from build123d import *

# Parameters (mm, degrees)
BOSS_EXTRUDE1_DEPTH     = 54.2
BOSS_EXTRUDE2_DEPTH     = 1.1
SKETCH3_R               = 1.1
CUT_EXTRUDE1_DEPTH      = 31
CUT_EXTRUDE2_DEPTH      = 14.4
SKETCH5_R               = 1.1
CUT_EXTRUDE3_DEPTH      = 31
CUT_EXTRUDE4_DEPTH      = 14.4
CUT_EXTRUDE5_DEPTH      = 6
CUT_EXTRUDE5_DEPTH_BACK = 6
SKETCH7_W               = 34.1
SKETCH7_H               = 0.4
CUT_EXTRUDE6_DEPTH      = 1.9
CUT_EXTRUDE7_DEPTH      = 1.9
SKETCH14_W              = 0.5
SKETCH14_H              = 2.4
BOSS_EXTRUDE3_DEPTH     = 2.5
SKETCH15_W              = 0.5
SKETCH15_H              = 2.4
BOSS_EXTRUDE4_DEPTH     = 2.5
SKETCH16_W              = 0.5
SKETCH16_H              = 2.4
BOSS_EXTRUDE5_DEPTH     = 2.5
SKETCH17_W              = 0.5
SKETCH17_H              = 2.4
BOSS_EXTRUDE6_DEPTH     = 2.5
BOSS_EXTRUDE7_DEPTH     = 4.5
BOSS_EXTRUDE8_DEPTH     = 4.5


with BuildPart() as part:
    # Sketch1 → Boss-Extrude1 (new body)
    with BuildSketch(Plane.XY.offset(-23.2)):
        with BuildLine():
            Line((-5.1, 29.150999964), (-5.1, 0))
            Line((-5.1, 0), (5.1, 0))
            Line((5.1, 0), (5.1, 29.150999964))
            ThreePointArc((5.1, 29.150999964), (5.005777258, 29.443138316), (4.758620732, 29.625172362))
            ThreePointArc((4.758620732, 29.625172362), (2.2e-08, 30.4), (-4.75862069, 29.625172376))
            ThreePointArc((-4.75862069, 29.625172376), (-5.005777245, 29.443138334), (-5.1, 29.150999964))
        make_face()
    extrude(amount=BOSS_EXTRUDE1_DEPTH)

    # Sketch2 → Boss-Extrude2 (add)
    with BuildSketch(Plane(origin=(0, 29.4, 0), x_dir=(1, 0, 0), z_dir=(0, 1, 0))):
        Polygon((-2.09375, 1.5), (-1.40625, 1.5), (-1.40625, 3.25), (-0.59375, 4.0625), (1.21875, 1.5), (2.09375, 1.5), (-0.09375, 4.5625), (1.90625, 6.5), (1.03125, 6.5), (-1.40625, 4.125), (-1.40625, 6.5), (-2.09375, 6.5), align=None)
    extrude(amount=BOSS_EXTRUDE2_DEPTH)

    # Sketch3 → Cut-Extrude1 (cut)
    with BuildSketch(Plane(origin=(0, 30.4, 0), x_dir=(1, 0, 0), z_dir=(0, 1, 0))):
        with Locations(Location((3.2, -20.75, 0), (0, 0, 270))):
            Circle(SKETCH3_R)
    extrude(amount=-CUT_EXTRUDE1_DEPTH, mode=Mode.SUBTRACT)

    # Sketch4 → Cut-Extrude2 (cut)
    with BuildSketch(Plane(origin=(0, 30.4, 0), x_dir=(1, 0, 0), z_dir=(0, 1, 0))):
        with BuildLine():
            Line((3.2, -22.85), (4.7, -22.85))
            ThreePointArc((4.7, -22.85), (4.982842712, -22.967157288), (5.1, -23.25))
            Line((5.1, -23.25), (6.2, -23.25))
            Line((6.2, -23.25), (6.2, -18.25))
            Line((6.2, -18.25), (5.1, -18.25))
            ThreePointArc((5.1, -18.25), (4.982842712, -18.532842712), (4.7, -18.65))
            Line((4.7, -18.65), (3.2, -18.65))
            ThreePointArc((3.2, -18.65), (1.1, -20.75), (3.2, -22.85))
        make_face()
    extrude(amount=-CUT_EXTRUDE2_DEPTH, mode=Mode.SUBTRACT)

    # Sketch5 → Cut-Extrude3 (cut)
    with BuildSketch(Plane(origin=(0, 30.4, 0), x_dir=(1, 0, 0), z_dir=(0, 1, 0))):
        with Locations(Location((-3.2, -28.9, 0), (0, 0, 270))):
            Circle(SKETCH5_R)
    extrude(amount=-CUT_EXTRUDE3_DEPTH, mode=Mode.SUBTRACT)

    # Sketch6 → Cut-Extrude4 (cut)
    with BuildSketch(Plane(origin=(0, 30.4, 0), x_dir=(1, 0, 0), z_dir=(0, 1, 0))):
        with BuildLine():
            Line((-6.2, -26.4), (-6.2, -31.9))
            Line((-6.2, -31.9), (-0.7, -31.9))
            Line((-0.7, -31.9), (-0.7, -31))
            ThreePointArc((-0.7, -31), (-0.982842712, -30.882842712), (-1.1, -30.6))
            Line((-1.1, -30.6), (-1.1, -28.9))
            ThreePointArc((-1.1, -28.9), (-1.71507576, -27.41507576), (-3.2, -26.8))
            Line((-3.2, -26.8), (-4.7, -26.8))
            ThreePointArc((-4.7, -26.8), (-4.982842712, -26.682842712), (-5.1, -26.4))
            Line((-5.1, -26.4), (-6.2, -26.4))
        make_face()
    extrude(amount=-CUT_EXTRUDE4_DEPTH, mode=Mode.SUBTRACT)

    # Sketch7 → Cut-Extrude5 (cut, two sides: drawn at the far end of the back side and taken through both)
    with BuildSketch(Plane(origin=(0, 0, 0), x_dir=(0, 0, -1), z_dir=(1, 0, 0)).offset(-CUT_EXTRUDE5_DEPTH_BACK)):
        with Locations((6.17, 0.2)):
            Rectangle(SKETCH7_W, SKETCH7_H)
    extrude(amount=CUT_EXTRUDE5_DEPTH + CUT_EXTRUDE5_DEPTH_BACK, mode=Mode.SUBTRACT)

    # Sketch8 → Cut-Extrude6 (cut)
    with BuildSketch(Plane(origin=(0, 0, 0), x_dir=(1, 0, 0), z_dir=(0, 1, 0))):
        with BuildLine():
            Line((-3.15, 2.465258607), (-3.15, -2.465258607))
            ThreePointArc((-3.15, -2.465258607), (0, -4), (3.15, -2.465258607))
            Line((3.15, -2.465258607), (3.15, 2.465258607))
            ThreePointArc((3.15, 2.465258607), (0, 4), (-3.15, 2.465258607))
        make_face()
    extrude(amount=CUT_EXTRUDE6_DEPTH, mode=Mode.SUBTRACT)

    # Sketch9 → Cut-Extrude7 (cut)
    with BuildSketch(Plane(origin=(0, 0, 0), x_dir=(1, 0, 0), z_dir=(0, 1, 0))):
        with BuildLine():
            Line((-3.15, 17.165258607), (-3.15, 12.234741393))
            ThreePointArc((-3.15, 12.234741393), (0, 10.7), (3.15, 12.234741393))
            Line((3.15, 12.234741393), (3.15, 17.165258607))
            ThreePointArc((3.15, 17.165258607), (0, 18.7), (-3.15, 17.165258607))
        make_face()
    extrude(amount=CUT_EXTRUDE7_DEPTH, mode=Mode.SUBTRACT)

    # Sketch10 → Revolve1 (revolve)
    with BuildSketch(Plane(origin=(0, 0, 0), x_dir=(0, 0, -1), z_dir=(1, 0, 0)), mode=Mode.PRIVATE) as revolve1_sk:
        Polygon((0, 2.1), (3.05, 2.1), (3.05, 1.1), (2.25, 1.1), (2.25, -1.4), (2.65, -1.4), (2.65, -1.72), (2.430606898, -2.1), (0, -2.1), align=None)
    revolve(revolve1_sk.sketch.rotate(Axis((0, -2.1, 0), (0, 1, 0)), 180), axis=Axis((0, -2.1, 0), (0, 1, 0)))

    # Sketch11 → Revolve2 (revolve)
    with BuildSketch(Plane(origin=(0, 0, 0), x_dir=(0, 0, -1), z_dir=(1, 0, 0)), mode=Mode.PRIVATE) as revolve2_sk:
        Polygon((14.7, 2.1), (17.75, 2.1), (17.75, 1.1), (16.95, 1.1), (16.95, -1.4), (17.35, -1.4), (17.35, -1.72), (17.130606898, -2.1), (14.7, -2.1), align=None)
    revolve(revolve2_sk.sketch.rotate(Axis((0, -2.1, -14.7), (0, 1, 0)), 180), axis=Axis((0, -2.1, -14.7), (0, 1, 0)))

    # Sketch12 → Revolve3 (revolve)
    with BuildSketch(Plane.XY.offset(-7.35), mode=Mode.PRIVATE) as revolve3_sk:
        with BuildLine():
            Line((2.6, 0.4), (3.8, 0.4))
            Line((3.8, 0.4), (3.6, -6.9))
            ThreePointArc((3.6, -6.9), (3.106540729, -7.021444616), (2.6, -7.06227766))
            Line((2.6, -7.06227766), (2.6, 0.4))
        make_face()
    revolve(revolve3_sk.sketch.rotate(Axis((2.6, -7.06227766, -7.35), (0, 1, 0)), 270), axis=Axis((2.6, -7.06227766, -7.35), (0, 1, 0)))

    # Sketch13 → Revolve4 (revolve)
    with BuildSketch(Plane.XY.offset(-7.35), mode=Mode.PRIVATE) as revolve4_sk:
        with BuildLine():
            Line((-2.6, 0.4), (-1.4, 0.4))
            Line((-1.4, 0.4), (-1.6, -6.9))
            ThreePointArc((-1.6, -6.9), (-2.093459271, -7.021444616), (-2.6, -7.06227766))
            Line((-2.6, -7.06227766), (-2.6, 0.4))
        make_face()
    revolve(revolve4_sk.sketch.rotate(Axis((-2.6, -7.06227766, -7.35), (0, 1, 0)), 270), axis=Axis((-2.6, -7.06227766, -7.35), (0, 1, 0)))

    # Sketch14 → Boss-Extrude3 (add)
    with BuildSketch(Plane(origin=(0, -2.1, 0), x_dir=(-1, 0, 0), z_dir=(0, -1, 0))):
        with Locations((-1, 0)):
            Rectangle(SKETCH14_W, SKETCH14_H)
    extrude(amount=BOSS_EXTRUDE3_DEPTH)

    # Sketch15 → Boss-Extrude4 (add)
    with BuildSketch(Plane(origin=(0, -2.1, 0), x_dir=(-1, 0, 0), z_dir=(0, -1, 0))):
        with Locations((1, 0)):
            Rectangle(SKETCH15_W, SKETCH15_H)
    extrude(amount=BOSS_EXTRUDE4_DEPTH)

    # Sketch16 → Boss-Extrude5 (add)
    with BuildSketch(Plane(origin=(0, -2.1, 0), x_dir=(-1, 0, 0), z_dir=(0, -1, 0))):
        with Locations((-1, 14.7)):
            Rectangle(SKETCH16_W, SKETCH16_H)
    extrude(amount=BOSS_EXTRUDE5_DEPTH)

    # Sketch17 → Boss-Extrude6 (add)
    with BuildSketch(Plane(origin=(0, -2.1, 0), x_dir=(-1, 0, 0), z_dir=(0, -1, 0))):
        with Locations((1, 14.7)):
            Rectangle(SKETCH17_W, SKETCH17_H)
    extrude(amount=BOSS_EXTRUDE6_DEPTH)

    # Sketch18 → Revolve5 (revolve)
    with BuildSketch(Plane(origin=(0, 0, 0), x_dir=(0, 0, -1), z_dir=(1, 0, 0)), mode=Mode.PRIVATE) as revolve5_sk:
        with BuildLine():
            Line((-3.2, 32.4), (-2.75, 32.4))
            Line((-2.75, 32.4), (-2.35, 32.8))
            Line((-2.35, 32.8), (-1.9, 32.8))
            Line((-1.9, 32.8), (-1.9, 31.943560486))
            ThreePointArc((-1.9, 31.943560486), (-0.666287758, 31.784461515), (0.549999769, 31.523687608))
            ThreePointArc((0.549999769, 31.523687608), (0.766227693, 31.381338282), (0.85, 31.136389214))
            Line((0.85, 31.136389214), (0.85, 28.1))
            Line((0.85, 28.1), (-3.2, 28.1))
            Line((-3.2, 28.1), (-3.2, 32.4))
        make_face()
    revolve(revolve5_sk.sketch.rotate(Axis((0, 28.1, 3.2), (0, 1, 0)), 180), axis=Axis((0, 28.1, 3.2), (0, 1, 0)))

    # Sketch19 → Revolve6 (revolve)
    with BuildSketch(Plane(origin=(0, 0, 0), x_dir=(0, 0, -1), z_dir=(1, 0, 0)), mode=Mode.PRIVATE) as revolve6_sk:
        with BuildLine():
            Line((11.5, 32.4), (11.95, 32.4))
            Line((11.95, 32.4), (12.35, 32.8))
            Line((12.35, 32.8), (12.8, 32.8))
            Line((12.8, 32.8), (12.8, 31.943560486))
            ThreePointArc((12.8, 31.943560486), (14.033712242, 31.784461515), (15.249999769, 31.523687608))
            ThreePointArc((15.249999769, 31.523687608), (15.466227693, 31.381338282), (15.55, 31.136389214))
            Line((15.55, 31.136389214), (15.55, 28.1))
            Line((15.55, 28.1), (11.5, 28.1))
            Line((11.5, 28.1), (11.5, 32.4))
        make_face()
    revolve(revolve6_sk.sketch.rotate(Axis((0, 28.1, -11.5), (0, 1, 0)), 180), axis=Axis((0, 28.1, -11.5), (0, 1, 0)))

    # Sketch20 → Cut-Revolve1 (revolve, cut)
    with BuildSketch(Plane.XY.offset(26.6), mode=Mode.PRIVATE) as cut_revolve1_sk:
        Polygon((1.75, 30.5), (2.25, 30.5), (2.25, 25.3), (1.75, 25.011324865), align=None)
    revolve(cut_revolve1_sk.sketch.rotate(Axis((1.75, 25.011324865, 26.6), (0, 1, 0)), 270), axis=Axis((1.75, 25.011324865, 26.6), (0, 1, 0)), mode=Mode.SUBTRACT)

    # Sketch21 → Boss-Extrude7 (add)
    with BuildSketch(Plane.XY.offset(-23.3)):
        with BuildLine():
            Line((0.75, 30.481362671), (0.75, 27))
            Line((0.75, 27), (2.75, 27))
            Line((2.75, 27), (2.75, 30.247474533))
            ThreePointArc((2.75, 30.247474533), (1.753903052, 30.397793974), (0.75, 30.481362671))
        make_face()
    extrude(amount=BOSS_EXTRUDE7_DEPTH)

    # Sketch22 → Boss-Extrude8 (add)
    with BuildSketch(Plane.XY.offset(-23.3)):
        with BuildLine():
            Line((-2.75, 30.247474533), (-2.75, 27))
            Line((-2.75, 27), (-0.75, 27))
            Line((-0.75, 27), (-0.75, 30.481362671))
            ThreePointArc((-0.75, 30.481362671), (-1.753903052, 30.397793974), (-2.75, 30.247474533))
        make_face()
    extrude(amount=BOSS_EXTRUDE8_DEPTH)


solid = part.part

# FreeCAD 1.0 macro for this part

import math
import FreeCAD as App
import Part
import Sketcher
from FreeCAD import Vector
Q = App.Units.Quantity


def add_polygon(sketch, points):
    """Adds a closed chain of lines whose ends are joined by coincident constraints."""
    first, n = sketch.GeometryCount, len(points)
    for a, b in zip(points, points[1:] + points[:1]):
        sketch.addGeometry(Part.LineSegment(App.Vector(*a, 0), App.Vector(*b, 0)), False)
    for i in range(n):
        sketch.addConstraint(Sketcher.Constraint("Coincident", first + i, 2, first + (i + 1) % n, 1))

doc = App.newDocument("Part")
body = doc.addObject("PartDesign::Body", "Body")

# Sketch on XY plane
sketch1 = doc.addObject("Sketcher::SketchObject", "Sketch")
body.addObject(sketch1)
sketch1.AttachmentSupport = (doc.XY_Plane, [""])
sketch1.MapMode = "FlatFace"
sketch1.AttachmentOffset = App.Placement(Vector(0, 0, -23.2), App.Rotation())
sketch1.addGeometry([
    Part.LineSegment(Vector(-5.1, 29.2, 0), Vector(-5.1, 0, 0)),  # 0
    Part.LineSegment(Vector(-5.1, 0, 0), Vector(5.1, 0, 0)),  # 1
    Part.LineSegment(Vector(5.1, 0, 0), Vector(5.1, 29.2, 0)),  # 2
    Part.ArcOfCircle(Part.Circle(Vector(4.6, 29.2, 0), Vector(0, 0, 1), 0.5), math.radians(0), math.radians(72)),  # 3
    Part.ArcOfCircle(Part.Circle(Vector(0, 15.4, 0), Vector(0, 0, 1), 15), math.radians(72), math.radians(108)),  # 4
    Part.ArcOfCircle(Part.Circle(Vector(-4.6, 29.2, 0), Vector(0, 0, 1), 0.5), math.radians(108), math.radians(180)),  # 5
], False)
sketch1.addConstraint([
    Sketcher.Constraint("Coincident", 0, 2, 1, 1),
    Sketcher.Constraint("Coincident", 1, 2, 2, 1),
    Sketcher.Constraint("Tangent", 2, 2, 3, 1),
    Sketcher.Constraint("Tangent", 3, 2, 4, 1),
    Sketcher.Constraint("Tangent", 4, 2, 5, 1),
    Sketcher.Constraint("Tangent", 5, 2, 0, 1),
    Sketcher.Constraint("Vertical", 0),
    Sketcher.Constraint("Horizontal", 1),
    Sketcher.Constraint("Vertical", 2),
    Sketcher.Constraint("Equal", 3, 5),
    Sketcher.Constraint("Symmetric", 0, 2, 1, 2, -1, 1),
    Sketcher.Constraint("PointOnObject", 4, 3, -2),
    Sketcher.Constraint("Radius", 4, Q("15 mm")),
    Sketcher.Constraint("Radius", 3, Q("0.5 mm")),
    Sketcher.Constraint("DistanceX", 1, 1, 1, 2, Q("10.2 mm")),
    Sketcher.Constraint("DistanceY", -1, 1, 4, 3, Q("15.4 mm")),
])
pad1 = doc.addObject("PartDesign::Pad", "Pad")
body.addObject(pad1)
pad1.Profile = sketch1
pad1.Length = 54.2

# Sketch on XZ plane
sketch2 = doc.addObject("Sketcher::SketchObject", "Sketch001")
body.addObject(sketch2)
sketch2.AttachmentSupport = (doc.XZ_Plane, [""])
sketch2.MapMode = "FlatFace"
sketch2.AttachmentOffset = App.Placement(Vector(0, 0, -29.4), App.Rotation())
add_polygon(sketch2, [(-2.1, -1.5), (-1.4, -1.5), (-1.4, -3.2), (-0.6, -4.1), (1.2, -1.5), (2.1, -1.5), (-0.1, -4.6), (1.9, -6.5), (1, -6.5), (-1.4, -4.1), (-1.4, -6.5), (-2.1, -6.5)])  # lines 0-11
sketch2.addConstraint([
    Sketcher.Constraint("Horizontal", 0),
    Sketcher.Constraint("Vertical", 1),
    Sketcher.Constraint("Horizontal", 4),
    Sketcher.Constraint("Horizontal", 7),
    Sketcher.Constraint("Vertical", 9),
    Sketcher.Constraint("Horizontal", 10),
    Sketcher.Constraint("Vertical", 11),
    Sketcher.Constraint("Symmetric", 4, 2, 11, 2, -2),
    Sketcher.Constraint("Horizontal", 7, 2, 9, 2),
    Sketcher.Constraint("Vertical", 1, 2, 8, 2),
    Sketcher.Constraint("Equal", 4, 7),
    Sketcher.Constraint("DistanceY", 11, 1, 11, 2, Q("5 mm")),
    Sketcher.Constraint("Angle", 2, Q("-45 deg")),
    Sketcher.Constraint("DistanceX", 5, 2, 6, 2, Q("2 mm")),
    Sketcher.Constraint("DistanceX", 10, 2, 5, 2, Q("2 mm")),
    Sketcher.Constraint("DistanceY", 1, 2, 1, 1, Q("1.75 mm")),
    Sketcher.Constraint("DistanceY", 0, 2, -1, 1, Q("1.5 mm")),
    Sketcher.Constraint("DistanceX", 0, 2, 4, 2, Q("3.5 mm")),
    Sketcher.Constraint("DistanceX", 2, 2, 5, 2, Q("0.5 mm")),
    Sketcher.Constraint("DistanceY", 5, 2, 2, 2, Q("0.5 mm")),
    Sketcher.Constraint("DistanceX", 4, 1, 4, 2, Q("0.875 mm")),
    Sketcher.Constraint("DistanceY", 9, 2, 9, 1, Q("2.375 mm")),
    Sketcher.Constraint("DistanceX", 0, 1, 0, 2, Q("0.6875 mm")),
])
pad2 = doc.addObject("PartDesign::Pad", "Pad001")
body.addObject(pad2)
pad2.Profile = sketch2
pad2.Length = 1.1
pad2.Reversed = True

# Sketch on XZ plane
sketch3 = doc.addObject("Sketcher::SketchObject", "Sketch002")
body.addObject(sketch3)
sketch3.AttachmentSupport = (doc.XZ_Plane, [""])
sketch3.MapMode = "FlatFace"
sketch3.AttachmentOffset = App.Placement(Vector(0, 0, -30.4), App.Rotation())
sketch3.addGeometry(Part.Circle(Vector(3.2, 20.8, 0), Vector(0, 0, 1), 1.1), False)
sketch3.addConstraint([
    Sketcher.Constraint("Diameter", 0, Q("2.2 mm")),
    Sketcher.Constraint("DistanceX", -1, 1, 0, 3, Q("3.2 mm")),
    Sketcher.Constraint("DistanceY", -1, 1, 0, 3, Q("20.75 mm")),
])
pocket1 = doc.addObject("PartDesign::Pocket", "Pocket")
body.addObject(pocket1)
pocket1.Profile = sketch3
pocket1.Length = 31
pocket1.Reversed = True

# Sketch on XZ plane
sketch4 = doc.addObject("Sketcher::SketchObject", "Sketch003")
body.addObject(sketch4)
sketch4.AttachmentSupport = (doc.XZ_Plane, [""])
sketch4.MapMode = "FlatFace"
sketch4.AttachmentOffset = App.Placement(Vector(0, 0, -30.4), App.Rotation())
sketch4.addGeometry([
    Part.LineSegment(Vector(3.2, 22.85, 0), Vector(4.7, 22.85, 0)),  # 0
    Part.ArcOfCircle(Part.Circle(Vector(4.7, 23.25, 0), Vector(0, 0, 1), 0.4), math.radians(-90), math.radians(0)),  # 1
    Part.LineSegment(Vector(5.1, 23.25, 0), Vector(6.2, 23.25, 0)),  # 2
    Part.LineSegment(Vector(6.2, 23.25, 0), Vector(6.2, 18.25, 0)),  # 3
    Part.LineSegment(Vector(6.2, 18.25, 0), Vector(5.1, 18.25, 0)),  # 4
    Part.ArcOfCircle(Part.Circle(Vector(4.7, 18.25, 0), Vector(0, 0, 1), 0.4), math.radians(0), math.radians(90)),  # 5
    Part.LineSegment(Vector(4.7, 18.65, 0), Vector(3.2, 18.65, 0)),  # 6
    Part.ArcOfCircle(Part.Circle(Vector(3.2, 20.75, 0), Vector(0, 0, 1), 2.1), math.radians(90), math.radians(270)),  # 7
], False)
sketch4.addConstraint([
    Sketcher.Constraint("Tangent", 0, 2, 1, 1),
    Sketcher.Constraint("Coincident", 1, 2, 2, 1),
    Sketcher.Constraint("Coincident", 2, 2, 3, 1),
    Sketcher.Constraint("Coincident", 3, 2, 4, 1),
    Sketcher.Constraint("Coincident", 4, 2, 5, 1),
    Sketcher.Constraint("Tangent", 5, 2, 6, 1),
    Sketcher.Constraint("Tangent", 6, 2, 7, 2),
    Sketcher.Constraint("Tangent", 7, 1, 0, 1),
    Sketcher.Constraint("Horizontal", 0),
    Sketcher.Constraint("Horizontal", 2),
    Sketcher.Constraint("Vertical", 3),
    Sketcher.Constraint("Horizontal", 4),
    Sketcher.Constraint("Horizontal", 6),
    Sketcher.Constraint("Equal", 1, 5),
    Sketcher.Constraint("Horizontal", 5, 3, 3, 2),
    Sketcher.Constraint("Vertical", 1, 3, 5, 3),
    Sketcher.Constraint("Radius", 1, Q("0.4 mm")),
    Sketcher.Constraint("Radius", 7, Q("2.1 mm")),
    Sketcher.Constraint("DistanceY", 3, 2, 3, 1, Q("5 mm")),
    Sketcher.Constraint("DistanceX", 0, 1, 0, 2, Q("1.5 mm")),
    Sketcher.Constraint("DistanceX", 2, 1, 2, 2, Q("1.1 mm")),
    Sketcher.Constraint("DistanceX", -1, 1, 1, 3, Q("4.7 mm")),
    Sketcher.Constraint("DistanceY", -1, 1, 1, 3, Q("23.25 mm")),
])
pocket2 = doc.addObject("PartDesign::Pocket", "Pocket001")
body.addObject(pocket2)
pocket2.Profile = sketch4
pocket2.Length = 14.4
pocket2.Reversed = True

# Sketch on XZ plane
sketch5 = doc.addObject("Sketcher::SketchObject", "Sketch004")
body.addObject(sketch5)
sketch5.AttachmentSupport = (doc.XZ_Plane, [""])
sketch5.MapMode = "FlatFace"
sketch5.AttachmentOffset = App.Placement(Vector(0, 0, -30.4), App.Rotation())
sketch5.addGeometry(Part.Circle(Vector(-3.2, 28.9, 0), Vector(0, 0, 1), 1.1), False)
sketch5.addConstraint([
    Sketcher.Constraint("Diameter", 0, Q("2.2 mm")),
    Sketcher.Constraint("DistanceX", 0, 3, -1, 1, Q("3.2 mm")),
    Sketcher.Constraint("DistanceY", -1, 1, 0, 3, Q("28.9 mm")),
])
pocket3 = doc.addObject("PartDesign::Pocket", "Pocket002")
body.addObject(pocket3)
pocket3.Profile = sketch5
pocket3.Length = 31
pocket3.Reversed = True

# Sketch on XZ plane
sketch6 = doc.addObject("Sketcher::SketchObject", "Sketch005")
body.addObject(sketch6)
sketch6.AttachmentSupport = (doc.XZ_Plane, [""])
sketch6.MapMode = "FlatFace"
sketch6.AttachmentOffset = App.Placement(Vector(0, 0, -30.4), App.Rotation())
sketch6.addGeometry([
    Part.LineSegment(Vector(-6.2, 26.4, 0), Vector(-6.2, 31.9, 0)),  # 0
    Part.LineSegment(Vector(-6.2, 31.9, 0), Vector(-0.7, 31.9, 0)),  # 1
    Part.LineSegment(Vector(-0.7, 31.9, 0), Vector(-0.7, 31, 0)),  # 2
    Part.ArcOfCircle(Part.Circle(Vector(-0.7, 30.6, 0), Vector(0, 0, 1), 0.4), math.radians(90), math.radians(180)),  # 3
    Part.LineSegment(Vector(-1.1, 30.6, 0), Vector(-1.1, 28.9, 0)),  # 4
    Part.ArcOfCircle(Part.Circle(Vector(-3.2, 28.9, 0), Vector(0, 0, 1), 2.1), math.radians(-90), math.radians(0)),  # 5
    Part.LineSegment(Vector(-3.2, 26.8, 0), Vector(-4.7, 26.8, 0)),  # 6
    Part.ArcOfCircle(Part.Circle(Vector(-4.7, 26.4, 0), Vector(0, 0, 1), 0.4), math.radians(90), math.radians(180)),  # 7
    Part.LineSegment(Vector(-5.1, 26.4, 0), Vector(-6.2, 26.4, 0)),  # 8
], False)
sketch6.addConstraint([
    Sketcher.Constraint("Coincident", 0, 2, 1, 1),
    Sketcher.Constraint("Coincident", 1, 2, 2, 1),
    Sketcher.Constraint("Coincident", 2, 2, 3, 1),
    Sketcher.Constraint("Tangent", 3, 2, 4, 1),
    Sketcher.Constraint("Tangent", 4, 2, 5, 2),
    Sketcher.Constraint("Tangent", 5, 1, 6, 1),
    Sketcher.Constraint("Tangent", 6, 2, 7, 1),
    Sketcher.Constraint("Coincident", 7, 2, 8, 1),
    Sketcher.Constraint("Coincident", 8, 2, 0, 1),
    Sketcher.Constraint("Vertical", 0),
    Sketcher.Constraint("Horizontal", 1),
    Sketcher.Constraint("Vertical", 2),
    Sketcher.Constraint("Vertical", 4),
    Sketcher.Constraint("Horizontal", 6),
    Sketcher.Constraint("Horizontal", 8),
    Sketcher.Constraint("Equal", 3, 7),
    Sketcher.Constraint("Vertical", 3, 3, 1, 2),
    Sketcher.Constraint("Equal", 1, 0),
    Sketcher.Constraint("Radius", 3, Q("0.4 mm")),
    Sketcher.Constraint("Radius", 5, Q("2.1 mm")),
    Sketcher.Constraint("DistanceX", 1, 1, 1, 2, Q("5.5 mm")),
    Sketcher.Constraint("DistanceX", 6, 2, 6, 1, Q("1.5 mm")),
    Sketcher.Constraint("DistanceY", 2, 2, 2, 1, Q("0.9 mm")),
    Sketcher.Constraint("DistanceY", 4, 2, 4, 1, Q("1.7 mm")),
    Sketcher.Constraint("DistanceY", -1, 1, 2, 2, Q("31 mm")),
    Sketcher.Constraint("DistanceX", 3, 3, -1, 1, Q("0.7 mm")),
])
pocket4 = doc.addObject("PartDesign::Pocket", "Pocket003")
body.addObject(pocket4)
pocket4.Profile = sketch6
pocket4.Length = 14.4
pocket4.Reversed = True

# Sketch on YZ plane
sketch7 = doc.addObject("Sketcher::SketchObject", "Sketch006")
body.addObject(sketch7)
sketch7.AttachmentSupport = (doc.YZ_Plane, [""])
sketch7.MapMode = "FlatFace"
add_polygon(sketch7, [(0.4, 10.88), (0, 10.88), (0, -23.22), (0.4, -23.22)])  # lines 0-3
sketch7.addConstraint([
    Sketcher.Constraint("Horizontal", 0),
    Sketcher.Constraint("Vertical", 1),
    Sketcher.Constraint("Horizontal", 2),
    Sketcher.Constraint("Vertical", 3),
    Sketcher.Constraint("PointOnObject", 0, 2, -2),
    Sketcher.Constraint("DistanceX", 0, 2, 0, 1, Q("0.4 mm")),
    Sketcher.Constraint("DistanceY", 1, 2, 1, 1, Q("34.1 mm")),
    Sketcher.Constraint("DistanceY", -1, 1, 0, 2, Q("10.88 mm")),
])
pocket5 = doc.addObject("PartDesign::Pocket", "Pocket004")
body.addObject(pocket5)
pocket5.Profile = sketch7
pocket5.Type = "ThroughAll"
pocket5.Midplane = True

# Sketch on XZ plane
sketch8 = doc.addObject("Sketcher::SketchObject", "Sketch007")
body.addObject(sketch8)
sketch8.AttachmentSupport = (doc.XZ_Plane, [""])
sketch8.MapMode = "FlatFace"
sketch8.addGeometry([
    Part.LineSegment(Vector(-3.1, -2.5, 0), Vector(-3.1, 2.5, 0)),
    Part.ArcOfCircle(Part.Circle(Vector(0, 0, 0), Vector(0, 0, 1), 4), math.radians(38), math.radians(142)),
    Part.LineSegment(Vector(3.1, 2.5, 0), Vector(3.1, -2.5, 0)),
    Part.ArcOfCircle(Part.Circle(Vector(0, 0, 0), Vector(0, 0, 1), 4), math.radians(-142), math.radians(-38)),
], False)
sketch8.addConstraint([
    Sketcher.Constraint("Coincident", 0, 2, 1, 2),
    Sketcher.Constraint("Coincident", 1, 1, 2, 1),
    Sketcher.Constraint("Coincident", 2, 2, 3, 2),
    Sketcher.Constraint("Coincident", 3, 1, 0, 1),
    Sketcher.Constraint("Vertical", 0),
    Sketcher.Constraint("Vertical", 2),
    Sketcher.Constraint("Coincident", 1, 3, -1, 1),
    Sketcher.Constraint("Coincident", 3, 3, -1, 1),
    Sketcher.Constraint("Equal", 1, 3),
    Sketcher.Constraint("Horizontal", 0, 2, 1, 1),
    Sketcher.Constraint("Radius", 1, Q("4 mm")),
    Sketcher.Constraint("DistanceX", 0, 2, 1, 1, Q("6.3 mm")),
])
pocket6 = doc.addObject("PartDesign::Pocket", "Pocket005")
body.addObject(pocket6)
pocket6.Profile = sketch8
pocket6.Length = 1.9

# Sketch on XZ plane
sketch9 = doc.addObject("Sketcher::SketchObject", "Sketch008")
body.addObject(sketch9)
sketch9.AttachmentSupport = (doc.XZ_Plane, [""])
sketch9.MapMode = "FlatFace"
sketch9.addGeometry([
    Part.LineSegment(Vector(-3.1, -17.2, 0), Vector(-3.1, -12.2, 0)),
    Part.ArcOfCircle(Part.Circle(Vector(0, -14.7, 0), Vector(0, 0, 1), 4), math.radians(38), math.radians(142)),
    Part.LineSegment(Vector(3.1, -12.2, 0), Vector(3.1, -17.2, 0)),
    Part.ArcOfCircle(Part.Circle(Vector(0, -14.7, 0), Vector(0, 0, 1), 4), math.radians(-142), math.radians(-38)),
], False)
sketch9.addConstraint([
    Sketcher.Constraint("Coincident", 0, 2, 1, 2),
    Sketcher.Constraint("Coincident", 1, 1, 2, 1),
    Sketcher.Constraint("Coincident", 2, 2, 3, 2),
    Sketcher.Constraint("Coincident", 3, 1, 0, 1),
    Sketcher.Constraint("Vertical", 0),
    Sketcher.Constraint("Vertical", 2),
    Sketcher.Constraint("Coincident", 3, 3, 1, 3),
    Sketcher.Constraint("Equal", 1, 3),
    Sketcher.Constraint("Symmetric", 0, 2, 1, 1, -2),
    Sketcher.Constraint("Radius", 1, Q("4 mm")),
    Sketcher.Constraint("DistanceY", 1, 3, -1, 1, Q("14.7 mm")),
    Sketcher.Constraint("DistanceX", 0, 2, 1, 1, Q("6.3 mm")),
])
pocket7 = doc.addObject("PartDesign::Pocket", "Pocket006")
body.addObject(pocket7)
pocket7.Profile = sketch9
pocket7.Length = 1.9

# Sketch on YZ plane
sketch10 = doc.addObject("Sketcher::SketchObject", "Sketch009")
body.addObject(sketch10)
sketch10.AttachmentSupport = (doc.YZ_Plane, [""])
sketch10.MapMode = "FlatFace"
add_polygon(sketch10, [(2.1, -3.05), (2.1, 0), (-2.1, 0), (-2.1, -2.43), (-1.72, -2.65), (-1.4, -2.65), (-1.4, -2.25), (1.1, -2.25), (1.1, -3.05)])  # lines 0-8
sketch10.addConstraint([
    Sketcher.Constraint("Vertical", 0),
    Sketcher.Constraint("Horizontal", 1),
    Sketcher.Constraint("Vertical", 2),
    Sketcher.Constraint("Horizontal", 4),
    Sketcher.Constraint("Vertical", 5),
    Sketcher.Constraint("Horizontal", 6),
    Sketcher.Constraint("Vertical", 7),
    Sketcher.Constraint("Horizontal", 8),
    Sketcher.Constraint("Symmetric", 0, 2, 1, 2, -1, 1),
    Sketcher.Constraint("DistanceX", 8, 1, 8, 2, Q("1 mm")),
    Sketcher.Constraint("Angle", 3, Q("-30 deg")),
    Sketcher.Constraint("DistanceX", 1, 2, 1, 1, Q("4.2 mm")),
    Sketcher.Constraint("DistanceX", 6, 1, 6, 2, Q("2.5 mm")),
    Sketcher.Constraint("DistanceY", 5, 1, 5, 2, Q("0.4 mm")),
    Sketcher.Constraint("DistanceY", 7, 2, 7, 1, Q("0.8 mm")),
    Sketcher.Constraint("DistanceX", 4, 1, 4, 2, Q("0.32 mm")),
    Sketcher.Constraint("DistanceY", 0, 1, 0, 2, Q("3.05 mm")),
])
revolution = doc.addObject("PartDesign::Revolution", "Revolution")
body.addObject(revolution)
revolution.Profile = sketch10
revolution.ReferenceAxis = (sketch10, ["H_Axis"])
revolution.Angle = 360

# Sketch on YZ plane
sketch11 = doc.addObject("Sketcher::SketchObject", "Sketch010")
body.addObject(sketch11)
sketch11.AttachmentSupport = (doc.YZ_Plane, [""])
sketch11.MapMode = "FlatFace"
add_polygon(sketch11, [(2.1, -17.75), (2.1, -14.7), (-2.1, -14.7), (-2.1, -17.13), (-1.72, -17.35), (-1.4, -17.35), (-1.4, -16.95), (1.1, -16.95), (1.1, -17.75)])  # lines 0-8
sketch11.addGeometry(Part.LineSegment(Vector(-2.1, -14.7, 0), Vector(2.1, -14.7, 0)), True)  # axis
sketch11.addConstraint([
    Sketcher.Constraint("Vertical", 0),
    Sketcher.Constraint("Horizontal", 1),
    Sketcher.Constraint("Vertical", 2),
    Sketcher.Constraint("Horizontal", 4),
    Sketcher.Constraint("Vertical", 5),
    Sketcher.Constraint("Horizontal", 6),
    Sketcher.Constraint("Vertical", 7),
    Sketcher.Constraint("Horizontal", 8),
    Sketcher.Constraint("Horizontal", 9),
    Sketcher.Constraint("Coincident", 9, 1, 1, 2),
    Sketcher.Constraint("Vertical", 8, 2, 9, 2),
    Sketcher.Constraint("DistanceX", 8, 1, 8, 2, Q("1 mm")),
    Sketcher.Constraint("Angle", 3, Q("-30 deg")),
    Sketcher.Constraint("DistanceX", 1, 2, 1, 1, Q("4.2 mm")),
    Sketcher.Constraint("DistanceX", 6, 1, 6, 2, Q("2.5 mm")),
    Sketcher.Constraint("DistanceY", 5, 1, 5, 2, Q("0.4 mm")),
    Sketcher.Constraint("DistanceY", 7, 2, 7, 1, Q("0.8 mm")),
    Sketcher.Constraint("DistanceX", 4, 1, 4, 2, Q("0.32 mm")),
    Sketcher.Constraint("DistanceY", 0, 1, 0, 2, Q("3.05 mm")),
    Sketcher.Constraint("DistanceX", -1, 1, 0, 2, Q("2.1 mm")),
    Sketcher.Constraint("DistanceY", 0, 2, -1, 1, Q("14.7 mm")),
])
revolution2 = doc.addObject("PartDesign::Revolution", "Revolution001")
body.addObject(revolution2)
revolution2.Profile = sketch11
revolution2.ReferenceAxis = (sketch11, ["Axis0"])
revolution2.Angle = 360

# Sketch on XY plane
sketch12 = doc.addObject("Sketcher::SketchObject", "Sketch011")
body.addObject(sketch12)
sketch12.AttachmentSupport = (doc.XY_Plane, [""])
sketch12.MapMode = "FlatFace"
sketch12.AttachmentOffset = App.Placement(Vector(0, 0, -7.35), App.Rotation())
sketch12.addGeometry([
    Part.LineSegment(Vector(3.8, 0.4, 0), Vector(2.6, 0.4, 0)),
    Part.LineSegment(Vector(2.6, 0.4, 0), Vector(2.6, -7.1, 0)),
    Part.ArcOfCircle(Part.Circle(Vector(2.6, -3.9, 0), Vector(0, 0, 1), 3.2), math.radians(-90), math.radians(-71.57)),
    Part.LineSegment(Vector(3.6, -6.9, 0), Vector(3.8, 0.4, 0)),
], False)
sketch12.addGeometry(Part.LineSegment(Vector(2.6, -7.1, 0), Vector(2.6, 0.4, 0)), True)  # axis
sketch12.addConstraint([
    Sketcher.Constraint("Coincident", 0, 2, 1, 1),
    Sketcher.Constraint("Coincident", 1, 2, 2, 1),
    Sketcher.Constraint("Coincident", 2, 2, 3, 1),
    Sketcher.Constraint("Coincident", 3, 2, 0, 1),
    Sketcher.Constraint("Horizontal", 0),
    Sketcher.Constraint("Vertical", 1),
    Sketcher.Constraint("Vertical", 4),
    Sketcher.Constraint("Coincident", 4, 1, 1, 2),
    Sketcher.Constraint("Horizontal", 3, 2, 4, 2),
    Sketcher.Constraint("Vertical", 2, 3, 0, 2),
    Sketcher.Constraint("DistanceX", 0, 2, 0, 1, Q("1.2 mm")),
    Sketcher.Constraint("DistanceX", 1, 2, 2, 2, Q("1 mm")),
    Sketcher.Constraint("DistanceY", 2, 2, 2, 3, Q("3 mm")),
    Sketcher.Constraint("DistanceX", -1, 1, 2, 3, Q("2.6 mm")),
    Sketcher.Constraint("DistanceY", 2, 3, -1, 1, Q("3.9 mm")),
    Sketcher.Constraint("DistanceY", -1, 1, 0, 2, Q("0.4 mm")),
])
revolution3 = doc.addObject("PartDesign::Revolution", "Revolution002")
body.addObject(revolution3)
revolution3.Profile = sketch12
revolution3.ReferenceAxis = (sketch12, ["Axis0"])
revolution3.Angle = 360

# Sketch on XY plane
sketch13 = doc.addObject("Sketcher::SketchObject", "Sketch012")
body.addObject(sketch13)
sketch13.AttachmentSupport = (doc.XY_Plane, [""])
sketch13.MapMode = "FlatFace"
sketch13.AttachmentOffset = App.Placement(Vector(0, 0, -7.35), App.Rotation())
sketch13.addGeometry([
    Part.LineSegment(Vector(-1.4, 0.4, 0), Vector(-2.6, 0.4, 0)),
    Part.LineSegment(Vector(-2.6, 0.4, 0), Vector(-2.6, -7.1, 0)),
    Part.ArcOfCircle(Part.Circle(Vector(-2.6, -3.9, 0), Vector(0, 0, 1), 3.2), math.radians(-90), math.radians(-71.57)),
    Part.LineSegment(Vector(-1.6, -6.9, 0), Vector(-1.4, 0.4, 0)),
], False)
sketch13.addGeometry(Part.LineSegment(Vector(-2.6, -7.1, 0), Vector(-2.6, 0.4, 0)), True)  # axis
sketch13.addConstraint([
    Sketcher.Constraint("Coincident", 0, 2, 1, 1),
    Sketcher.Constraint("Coincident", 1, 2, 2, 1),
    Sketcher.Constraint("Coincident", 2, 2, 3, 1),
    Sketcher.Constraint("Coincident", 3, 2, 0, 1),
    Sketcher.Constraint("Horizontal", 0),
    Sketcher.Constraint("Vertical", 1),
    Sketcher.Constraint("Vertical", 4),
    Sketcher.Constraint("Coincident", 4, 1, 1, 2),
    Sketcher.Constraint("Horizontal", 3, 2, 4, 2),
    Sketcher.Constraint("Vertical", 2, 3, 0, 2),
    Sketcher.Constraint("DistanceX", 0, 2, 0, 1, Q("1.2 mm")),
    Sketcher.Constraint("DistanceX", 1, 2, 2, 2, Q("1 mm")),
    Sketcher.Constraint("DistanceY", 2, 2, 2, 3, Q("3 mm")),
    Sketcher.Constraint("DistanceX", 2, 3, -1, 1, Q("2.6 mm")),
    Sketcher.Constraint("DistanceY", 2, 3, -1, 1, Q("3.9 mm")),
    Sketcher.Constraint("DistanceY", -1, 1, 0, 2, Q("0.4 mm")),
])
revolution4 = doc.addObject("PartDesign::Revolution", "Revolution003")
body.addObject(revolution4)
revolution4.Profile = sketch13
revolution4.ReferenceAxis = (sketch13, ["Axis0"])
revolution4.Angle = 360

# Sketch on XZ plane
sketch14 = doc.addObject("Sketcher::SketchObject", "Sketch013")
body.addObject(sketch14)
sketch14.AttachmentSupport = (doc.XZ_Plane, [""])
sketch14.MapMode = "FlatFace"
sketch14.AttachmentOffset = App.Placement(Vector(0, 0, 2.1), App.Rotation())
add_polygon(sketch14, [(1.2, -1.2), (1.2, 1.2), (0.8, 1.2), (0.8, -1.2)])  # lines 0-3
sketch14.addConstraint([
    Sketcher.Constraint("Vertical", 0),
    Sketcher.Constraint("Horizontal", 1),
    Sketcher.Constraint("Vertical", 2),
    Sketcher.Constraint("Horizontal", 3),
    Sketcher.Constraint("DistanceX", 1, 2, 1, 1, Q("0.5 mm")),
    Sketcher.Constraint("DistanceY", 0, 1, 0, 2, Q("2.4 mm")),
    Sketcher.Constraint("DistanceY", -1, 1, 0, 2, Q("1.2 mm")),
    Sketcher.Constraint("DistanceX", -1, 1, 0, 2, Q("1.25 mm")),
])
pad3 = doc.addObject("PartDesign::Pad", "Pad002")
body.addObject(pad3)
pad3.Profile = sketch14
pad3.Length = 2.5

# Sketch on XZ plane
sketch15 = doc.addObject("Sketcher::SketchObject", "Sketch014")
body.addObject(sketch15)
sketch15.AttachmentSupport = (doc.XZ_Plane, [""])
sketch15.MapMode = "FlatFace"
sketch15.AttachmentOffset = App.Placement(Vector(0, 0, 2.1), App.Rotation())
add_polygon(sketch15, [(-0.8, -1.2), (-0.8, 1.2), (-1.2, 1.2), (-1.2, -1.2)])  # lines 0-3
sketch15.addConstraint([
    Sketcher.Constraint("Vertical", 0),
    Sketcher.Constraint("Horizontal", 1),
    Sketcher.Constraint("Vertical", 2),
    Sketcher.Constraint("Horizontal", 3),
    Sketcher.Constraint("DistanceX", 1, 2, 1, 1, Q("0.5 mm")),
    Sketcher.Constraint("DistanceY", 0, 1, 0, 2, Q("2.4 mm")),
    Sketcher.Constraint("DistanceY", -1, 1, 0, 2, Q("1.2 mm")),
    Sketcher.Constraint("DistanceX", 0, 2, -1, 1, Q("0.75 mm")),
])
pad4 = doc.addObject("PartDesign::Pad", "Pad003")
body.addObject(pad4)
pad4.Profile = sketch15
pad4.Length = 2.5

# Sketch on XZ plane
sketch16 = doc.addObject("Sketcher::SketchObject", "Sketch015")
body.addObject(sketch16)
sketch16.AttachmentSupport = (doc.XZ_Plane, [""])
sketch16.MapMode = "FlatFace"
sketch16.AttachmentOffset = App.Placement(Vector(0, 0, 2.1), App.Rotation())
add_polygon(sketch16, [(1.2, -15.9), (1.2, -13.5), (0.8, -13.5), (0.8, -15.9)])  # lines 0-3
sketch16.addConstraint([
    Sketcher.Constraint("Vertical", 0),
    Sketcher.Constraint("Horizontal", 1),
    Sketcher.Constraint("Vertical", 2),
    Sketcher.Constraint("Horizontal", 3),
    Sketcher.Constraint("DistanceX", 1, 2, 1, 1, Q("0.5 mm")),
    Sketcher.Constraint("DistanceY", 0, 1, 0, 2, Q("2.4 mm")),
    Sketcher.Constraint("DistanceY", 0, 2, -1, 1, Q("13.5 mm")),
    Sketcher.Constraint("DistanceX", -1, 1, 0, 2, Q("1.25 mm")),
])
pad5 = doc.addObject("PartDesign::Pad", "Pad004")
body.addObject(pad5)
pad5.Profile = sketch16
pad5.Length = 2.5

# Sketch on XZ plane
sketch17 = doc.addObject("Sketcher::SketchObject", "Sketch016")
body.addObject(sketch17)
sketch17.AttachmentSupport = (doc.XZ_Plane, [""])
sketch17.MapMode = "FlatFace"
sketch17.AttachmentOffset = App.Placement(Vector(0, 0, 2.1), App.Rotation())
add_polygon(sketch17, [(-0.8, -15.9), (-0.8, -13.5), (-1.2, -13.5), (-1.2, -15.9)])  # lines 0-3
sketch17.addConstraint([
    Sketcher.Constraint("Vertical", 0),
    Sketcher.Constraint("Horizontal", 1),
    Sketcher.Constraint("Vertical", 2),
    Sketcher.Constraint("Horizontal", 3),
    Sketcher.Constraint("DistanceX", 1, 2, 1, 1, Q("0.5 mm")),
    Sketcher.Constraint("DistanceY", 0, 1, 0, 2, Q("2.4 mm")),
    Sketcher.Constraint("DistanceY", 0, 2, -1, 1, Q("13.5 mm")),
    Sketcher.Constraint("DistanceX", 0, 2, -1, 1, Q("0.75 mm")),
])
pad6 = doc.addObject("PartDesign::Pad", "Pad005")
body.addObject(pad6)
pad6.Profile = sketch17
pad6.Length = 2.5

# Sketch on YZ plane
sketch18 = doc.addObject("Sketcher::SketchObject", "Sketch017")
body.addObject(sketch18)
sketch18.AttachmentSupport = (doc.YZ_Plane, [""])
sketch18.MapMode = "FlatFace"
sketch18.addGeometry([
    Part.LineSegment(Vector(32.4, 2.75, 0), Vector(32.4, 3.2, 0)),  # 0
    Part.LineSegment(Vector(32.4, 3.2, 0), Vector(28.1, 3.2, 0)),  # 1
    Part.LineSegment(Vector(28.1, 3.2, 0), Vector(28.1, -0.85, 0)),  # 2
    Part.LineSegment(Vector(28.1, -0.85, 0), Vector(31.14, -0.85, 0)),  # 3
    Part.ArcOfCircle(Part.Circle(Vector(31.14, -0.45, 0), Vector(0, 0, 1), 0.4), math.radians(-90), math.radians(-14)),  # 4
    Part.ArcOfCircle(Part.Circle(Vector(17, 3.2, 0), Vector(0, 0, 1), 15), math.radians(-14.48), math.radians(-4.97)),  # 5
    Part.LineSegment(Vector(31.94, 1.9, 0), Vector(32.8, 1.9, 0)),  # 6
    Part.LineSegment(Vector(32.8, 1.9, 0), Vector(32.8, 2.35, 0)),  # 7
    Part.LineSegment(Vector(32.8, 2.35, 0), Vector(32.4, 2.75, 0)),  # 8
], False)
sketch18.addGeometry(Part.LineSegment(Vector(17, 3.2, 0), Vector(32.8, 3.2, 0)), True)  # axis
sketch18.addConstraint([
    Sketcher.Constraint("Coincident", 0, 2, 1, 1),
    Sketcher.Constraint("Coincident", 1, 2, 2, 1),
    Sketcher.Constraint("Coincident", 2, 2, 3, 1),
    Sketcher.Constraint("Tangent", 3, 2, 4, 1),
    Sketcher.Constraint("Tangent", 4, 2, 5, 1),
    Sketcher.Constraint("Coincident", 5, 2, 6, 1),
    Sketcher.Constraint("Coincident", 6, 2, 7, 1),
    Sketcher.Constraint("Coincident", 7, 2, 8, 1),
    Sketcher.Constraint("Coincident", 8, 2, 0, 1),
    Sketcher.Constraint("Vertical", 0),
    Sketcher.Constraint("Horizontal", 1),
    Sketcher.Constraint("Vertical", 2),
    Sketcher.Constraint("Horizontal", 3),
    Sketcher.Constraint("Horizontal", 6),
    Sketcher.Constraint("Vertical", 7),
    Sketcher.Constraint("Horizontal", 9),
    Sketcher.Constraint("Coincident", 9, 1, 5, 3),
    Sketcher.Constraint("Horizontal", 5, 3, 0, 2),
    Sketcher.Constraint("Vertical", 7, 2, 9, 2),
    Sketcher.Constraint("Equal", 0, 7),
    Sketcher.Constraint("Radius", 5, Q("15 mm")),
    Sketcher.Constraint("Radius", 4, Q("0.4 mm")),
    Sketcher.Constraint("Angle", 8, Q("135 deg")),
    Sketcher.Constraint("DistanceX", 1, 2, 1, 1, Q("4.3 mm")),
    Sketcher.Constraint("DistanceX", 9, 1, 9, 2, Q("15.8 mm")),
    Sketcher.Constraint("DistanceX", -1, 1, 5, 3, Q("17 mm")),
    Sketcher.Constraint("DistanceY", 0, 1, 0, 2, Q("0.45 mm")),
    Sketcher.Constraint("DistanceY", 2, 2, 2, 1, Q("4.05 mm")),
    Sketcher.Constraint("DistanceY", -1, 1, 5, 3, Q("3.2 mm")),
    Sketcher.Constraint("DistanceX", -1, 1, 0, 2, Q("32.4 mm")),
])
revolution5 = doc.addObject("PartDesign::Revolution", "Revolution004")
body.addObject(revolution5)
revolution5.Profile = sketch18
revolution5.ReferenceAxis = (sketch18, ["Axis0"])
revolution5.Angle = 360

# Sketch on YZ plane
sketch19 = doc.addObject("Sketcher::SketchObject", "Sketch018")
body.addObject(sketch19)
sketch19.AttachmentSupport = (doc.YZ_Plane, [""])
sketch19.MapMode = "FlatFace"
sketch19.addGeometry([
    Part.LineSegment(Vector(32.4, -11.95, 0), Vector(32.4, -11.5, 0)),  # 0
    Part.LineSegment(Vector(32.4, -11.5, 0), Vector(28.1, -11.5, 0)),  # 1
    Part.LineSegment(Vector(28.1, -11.5, 0), Vector(28.1, -15.55, 0)),  # 2
    Part.LineSegment(Vector(28.1, -15.55, 0), Vector(31.14, -15.55, 0)),  # 3
    Part.ArcOfCircle(Part.Circle(Vector(31.14, -15.15, 0), Vector(0, 0, 1), 0.4), math.radians(-90), math.radians(-14)),  # 4
    Part.ArcOfCircle(Part.Circle(Vector(17, -11.5, 0), Vector(0, 0, 1), 15), math.radians(-14.48), math.radians(-4.97)),  # 5
    Part.LineSegment(Vector(31.94, -12.8, 0), Vector(32.8, -12.8, 0)),  # 6
    Part.LineSegment(Vector(32.8, -12.8, 0), Vector(32.8, -12.35, 0)),  # 7
    Part.LineSegment(Vector(32.8, -12.35, 0), Vector(32.4, -11.95, 0)),  # 8
], False)
sketch19.addGeometry(Part.LineSegment(Vector(17, -11.5, 0), Vector(32.8, -11.5, 0)), True)  # axis
sketch19.addConstraint([
    Sketcher.Constraint("Coincident", 0, 2, 1, 1),
    Sketcher.Constraint("Coincident", 1, 2, 2, 1),
    Sketcher.Constraint("Coincident", 2, 2, 3, 1),
    Sketcher.Constraint("Tangent", 3, 2, 4, 1),
    Sketcher.Constraint("Tangent", 4, 2, 5, 1),
    Sketcher.Constraint("Coincident", 5, 2, 6, 1),
    Sketcher.Constraint("Coincident", 6, 2, 7, 1),
    Sketcher.Constraint("Coincident", 7, 2, 8, 1),
    Sketcher.Constraint("Coincident", 8, 2, 0, 1),
    Sketcher.Constraint("Vertical", 0),
    Sketcher.Constraint("Horizontal", 1),
    Sketcher.Constraint("Vertical", 2),
    Sketcher.Constraint("Horizontal", 3),
    Sketcher.Constraint("Horizontal", 6),
    Sketcher.Constraint("Vertical", 7),
    Sketcher.Constraint("Horizontal", 9),
    Sketcher.Constraint("Coincident", 9, 1, 5, 3),
    Sketcher.Constraint("Horizontal", 5, 3, 0, 2),
    Sketcher.Constraint("Vertical", 7, 2, 9, 2),
    Sketcher.Constraint("Equal", 0, 7),
    Sketcher.Constraint("Radius", 5, Q("15 mm")),
    Sketcher.Constraint("Radius", 4, Q("0.4 mm")),
    Sketcher.Constraint("Angle", 8, Q("135 deg")),
    Sketcher.Constraint("DistanceX", 1, 2, 1, 1, Q("4.3 mm")),
    Sketcher.Constraint("DistanceX", 9, 1, 9, 2, Q("15.8 mm")),
    Sketcher.Constraint("DistanceX", -1, 1, 5, 3, Q("17 mm")),
    Sketcher.Constraint("DistanceY", 0, 1, 0, 2, Q("0.45 mm")),
    Sketcher.Constraint("DistanceY", 2, 2, 2, 1, Q("4.05 mm")),
    Sketcher.Constraint("DistanceY", 5, 3, -1, 1, Q("11.5 mm")),
    Sketcher.Constraint("DistanceX", -1, 1, 0, 2, Q("32.4 mm")),
])
revolution6 = doc.addObject("PartDesign::Revolution", "Revolution005")
body.addObject(revolution6)
revolution6.Profile = sketch19
revolution6.ReferenceAxis = (sketch19, ["Axis0"])
revolution6.Angle = 360

# Sketch on XY plane
sketch20 = doc.addObject("Sketcher::SketchObject", "Sketch019")
body.addObject(sketch20)
sketch20.AttachmentSupport = (doc.XY_Plane, [""])
sketch20.MapMode = "FlatFace"
sketch20.AttachmentOffset = App.Placement(Vector(0, 0, 26.6), App.Rotation())
add_polygon(sketch20, [(2.2, 30.5), (1.8, 30.5), (1.8, 25), (2.2, 25.3)])  # lines 0-3
sketch20.addGeometry(Part.LineSegment(Vector(1.8, 25, 0), Vector(1.8, 30.5, 0)), True)  # axis
sketch20.addConstraint([
    Sketcher.Constraint("Horizontal", 0),
    Sketcher.Constraint("Vertical", 1),
    Sketcher.Constraint("Vertical", 3),
    Sketcher.Constraint("Vertical", 4),
    Sketcher.Constraint("Coincident", 4, 1, 1, 2),
    Sketcher.Constraint("Horizontal", 3, 2, 4, 2),
    Sketcher.Constraint("Angle", 2, Q("30 deg")),
    Sketcher.Constraint("DistanceX", 0, 2, 0, 1, Q("0.5 mm")),
    Sketcher.Constraint("DistanceY", 3, 1, 3, 2, Q("5.2 mm")),
    Sketcher.Constraint("DistanceY", -1, 1, 0, 2, Q("30.5 mm")),
    Sketcher.Constraint("DistanceX", -1, 1, 0, 2, Q("1.75 mm")),
])
groove = doc.addObject("PartDesign::Groove", "Groove")
body.addObject(groove)
groove.Profile = sketch20
groove.ReferenceAxis = (sketch20, ["Axis0"])
groove.Angle = 360

# Sketch on XY plane
sketch21 = doc.addObject("Sketcher::SketchObject", "Sketch020")
body.addObject(sketch21)
sketch21.AttachmentSupport = (doc.XY_Plane, [""])
sketch21.MapMode = "FlatFace"
sketch21.AttachmentOffset = App.Placement(Vector(0, 0, -23.3), App.Rotation())
sketch21.addGeometry([
    Part.LineSegment(Vector(0.8, 30.5, 0), Vector(0.8, 27, 0)),
    Part.LineSegment(Vector(0.8, 27, 0), Vector(2.8, 27, 0)),
    Part.LineSegment(Vector(2.8, 27, 0), Vector(2.8, 30.2, 0)),
    Part.ArcOfCircle(Part.Circle(Vector(0, 15.4, 0), Vector(0, 0, 1), 15.1), math.radians(79.51), math.radians(87.15)),
], False)
sketch21.addConstraint([
    Sketcher.Constraint("Coincident", 0, 2, 1, 1),
    Sketcher.Constraint("Coincident", 1, 2, 2, 1),
    Sketcher.Constraint("Coincident", 2, 2, 3, 1),
    Sketcher.Constraint("Coincident", 3, 2, 0, 1),
    Sketcher.Constraint("Vertical", 0),
    Sketcher.Constraint("Horizontal", 1),
    Sketcher.Constraint("Vertical", 2),
    Sketcher.Constraint("PointOnObject", 3, 3, -2),
    Sketcher.Constraint("Radius", 3, Q("15.1 mm")),
    Sketcher.Constraint("DistanceX", 1, 1, 1, 2, Q("2 mm")),
    Sketcher.Constraint("DistanceY", -1, 1, 0, 2, Q("27 mm")),
    Sketcher.Constraint("DistanceY", -1, 1, 3, 3, Q("15.4 mm")),
    Sketcher.Constraint("DistanceX", -1, 1, 0, 2, Q("0.75 mm")),
])
pad7 = doc.addObject("PartDesign::Pad", "Pad006")
body.addObject(pad7)
pad7.Profile = sketch21
pad7.Length = 4.5

# Sketch on XY plane
sketch22 = doc.addObject("Sketcher::SketchObject", "Sketch021")
body.addObject(sketch22)
sketch22.AttachmentSupport = (doc.XY_Plane, [""])
sketch22.MapMode = "FlatFace"
sketch22.AttachmentOffset = App.Placement(Vector(0, 0, -23.3), App.Rotation())
sketch22.addGeometry([
    Part.LineSegment(Vector(-2.8, 30.2, 0), Vector(-2.8, 27, 0)),
    Part.LineSegment(Vector(-2.8, 27, 0), Vector(-0.8, 27, 0)),
    Part.LineSegment(Vector(-0.8, 27, 0), Vector(-0.8, 30.5, 0)),
    Part.ArcOfCircle(Part.Circle(Vector(0, 15.4, 0), Vector(0, 0, 1), 15.1), math.radians(92.85), math.radians(100.49)),
], False)
sketch22.addConstraint([
    Sketcher.Constraint("Coincident", 0, 2, 1, 1),
    Sketcher.Constraint("Coincident", 1, 2, 2, 1),
    Sketcher.Constraint("Coincident", 2, 2, 3, 1),
    Sketcher.Constraint("Coincident", 3, 2, 0, 1),
    Sketcher.Constraint("Vertical", 0),
    Sketcher.Constraint("Horizontal", 1),
    Sketcher.Constraint("Vertical", 2),
    Sketcher.Constraint("PointOnObject", 3, 3, -2),
    Sketcher.Constraint("Radius", 3, Q("15.1 mm")),
    Sketcher.Constraint("DistanceX", 1, 1, 1, 2, Q("2 mm")),
    Sketcher.Constraint("DistanceY", -1, 1, 0, 2, Q("27 mm")),
    Sketcher.Constraint("DistanceY", -1, 1, 3, 3, Q("15.4 mm")),
    Sketcher.Constraint("DistanceX", 0, 2, -1, 1, Q("2.75 mm")),
])
pad8 = doc.addObject("PartDesign::Pad", "Pad007")
body.addObject(pad8)
pad8.Profile = sketch22
pad8.Length = 4.5

doc.recompute()
